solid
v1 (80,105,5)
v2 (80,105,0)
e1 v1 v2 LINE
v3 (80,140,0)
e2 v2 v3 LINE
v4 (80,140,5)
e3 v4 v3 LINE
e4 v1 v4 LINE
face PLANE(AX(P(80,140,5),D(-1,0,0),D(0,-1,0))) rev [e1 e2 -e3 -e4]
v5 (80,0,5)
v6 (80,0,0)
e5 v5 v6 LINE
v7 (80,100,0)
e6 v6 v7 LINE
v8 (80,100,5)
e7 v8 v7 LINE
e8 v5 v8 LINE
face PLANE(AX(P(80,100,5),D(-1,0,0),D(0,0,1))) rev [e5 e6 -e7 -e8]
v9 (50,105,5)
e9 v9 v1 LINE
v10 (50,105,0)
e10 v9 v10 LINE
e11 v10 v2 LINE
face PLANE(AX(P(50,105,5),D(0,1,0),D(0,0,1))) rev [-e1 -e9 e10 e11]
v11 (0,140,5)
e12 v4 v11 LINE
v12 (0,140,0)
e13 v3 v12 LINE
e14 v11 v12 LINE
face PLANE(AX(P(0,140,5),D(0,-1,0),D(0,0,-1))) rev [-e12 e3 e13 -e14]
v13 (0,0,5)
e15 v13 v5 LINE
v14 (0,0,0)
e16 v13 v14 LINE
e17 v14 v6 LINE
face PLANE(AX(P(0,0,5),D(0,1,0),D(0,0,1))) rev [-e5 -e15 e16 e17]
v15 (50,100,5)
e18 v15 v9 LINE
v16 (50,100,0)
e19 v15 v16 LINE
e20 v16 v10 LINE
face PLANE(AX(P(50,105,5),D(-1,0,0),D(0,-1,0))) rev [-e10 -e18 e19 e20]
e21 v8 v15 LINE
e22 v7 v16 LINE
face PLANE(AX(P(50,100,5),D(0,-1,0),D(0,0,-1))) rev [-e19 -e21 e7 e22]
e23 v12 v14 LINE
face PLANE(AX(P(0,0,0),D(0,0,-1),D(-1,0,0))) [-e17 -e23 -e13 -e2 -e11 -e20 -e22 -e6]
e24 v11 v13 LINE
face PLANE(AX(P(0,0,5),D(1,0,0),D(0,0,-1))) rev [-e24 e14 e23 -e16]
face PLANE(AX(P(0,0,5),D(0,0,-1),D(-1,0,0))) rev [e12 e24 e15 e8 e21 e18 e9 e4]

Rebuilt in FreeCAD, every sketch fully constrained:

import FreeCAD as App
import Part
import Sketcher
from FreeCAD import Vector

doc = App.newDocument("Part")
body = doc.addObject("PartDesign::Body", "Body")

# Sketch on XY plane
sketch1 = doc.addObject("Sketcher::SketchObject", "Sketch")
body.addObject(sketch1)
sketch1.AttachmentSupport = (doc.XY_Plane, [""])
sketch1.MapMode = "FlatFace"
sketch1.addGeometry([
    Part.LineSegment(Vector(80, 105, 0), Vector(80, 140, 0)),  # 0
    Part.LineSegment(Vector(80, 140, 0), Vector(0, 140, 0)),  # 1
    Part.LineSegment(Vector(0, 140, 0), Vector(0, 0, 0)),  # 2
    Part.LineSegment(Vector(0, 0, 0), Vector(80, 0, 0)),  # 3
    Part.LineSegment(Vector(80, 0, 0), Vector(80, 100, 0)),  # 4
    Part.LineSegment(Vector(80, 100, 0), Vector(50, 100, 0)),  # 5
    Part.LineSegment(Vector(50, 100, 0), Vector(50, 105, 0)),  # 6
    Part.LineSegment(Vector(50, 105, 0), Vector(80, 105, 0)),  # 7
], False)
sketch1.addConstraint([
    Sketcher.Constraint("Coincident", 0, 2, 1, 1),
    Sketcher.Constraint("Coincident", 1, 2, 2, 1),
    Sketcher.Constraint("Coincident", 2, 2, 3, 1),
    Sketcher.Constraint("Coincident", 3, 2, 4, 1),
    Sketcher.Constraint("Coincident", 4, 2, 5, 1),
    Sketcher.Constraint("Coincident", 5, 2, 6, 1),
    Sketcher.Constraint("Coincident", 6, 2, 7, 1),
    Sketcher.Constraint("Coincident", 7, 2, 0, 1),
    Sketcher.Constraint("Vertical", 0),
    Sketcher.Constraint("Horizontal", 1),
    Sketcher.Constraint("Vertical", 2),
    Sketcher.Constraint("Horizontal", 3),
    Sketcher.Constraint("Vertical", 4),
    Sketcher.Constraint("Horizontal", 5),
    Sketcher.Constraint("Vertical", 6),
    Sketcher.Constraint("Horizontal", 7),
    Sketcher.Constraint("Coincident", 2, 2, -1, 1),
    Sketcher.Constraint("Vertical", 0, 2, 3, 2),
    Sketcher.Constraint("DistanceX", 1, 2, 1, 1, 80.0),
    Sketcher.Constraint("DistanceX", 5, 2, 5, 1, 30.0),
    Sketcher.Constraint("DistanceY", 0, 1, 0, 2, 35.0),
    Sketcher.Constraint("DistanceY", 2, 2, 2, 1, 140.0),
    Sketcher.Constraint("DistanceY", 4, 1, 4, 2, 100.0),
])
pad1 = doc.addObject("PartDesign::Pad", "Pad")
body.addObject(pad1)
pad1.Profile = sketch1
pad1.Length = 5

doc.recompute()
